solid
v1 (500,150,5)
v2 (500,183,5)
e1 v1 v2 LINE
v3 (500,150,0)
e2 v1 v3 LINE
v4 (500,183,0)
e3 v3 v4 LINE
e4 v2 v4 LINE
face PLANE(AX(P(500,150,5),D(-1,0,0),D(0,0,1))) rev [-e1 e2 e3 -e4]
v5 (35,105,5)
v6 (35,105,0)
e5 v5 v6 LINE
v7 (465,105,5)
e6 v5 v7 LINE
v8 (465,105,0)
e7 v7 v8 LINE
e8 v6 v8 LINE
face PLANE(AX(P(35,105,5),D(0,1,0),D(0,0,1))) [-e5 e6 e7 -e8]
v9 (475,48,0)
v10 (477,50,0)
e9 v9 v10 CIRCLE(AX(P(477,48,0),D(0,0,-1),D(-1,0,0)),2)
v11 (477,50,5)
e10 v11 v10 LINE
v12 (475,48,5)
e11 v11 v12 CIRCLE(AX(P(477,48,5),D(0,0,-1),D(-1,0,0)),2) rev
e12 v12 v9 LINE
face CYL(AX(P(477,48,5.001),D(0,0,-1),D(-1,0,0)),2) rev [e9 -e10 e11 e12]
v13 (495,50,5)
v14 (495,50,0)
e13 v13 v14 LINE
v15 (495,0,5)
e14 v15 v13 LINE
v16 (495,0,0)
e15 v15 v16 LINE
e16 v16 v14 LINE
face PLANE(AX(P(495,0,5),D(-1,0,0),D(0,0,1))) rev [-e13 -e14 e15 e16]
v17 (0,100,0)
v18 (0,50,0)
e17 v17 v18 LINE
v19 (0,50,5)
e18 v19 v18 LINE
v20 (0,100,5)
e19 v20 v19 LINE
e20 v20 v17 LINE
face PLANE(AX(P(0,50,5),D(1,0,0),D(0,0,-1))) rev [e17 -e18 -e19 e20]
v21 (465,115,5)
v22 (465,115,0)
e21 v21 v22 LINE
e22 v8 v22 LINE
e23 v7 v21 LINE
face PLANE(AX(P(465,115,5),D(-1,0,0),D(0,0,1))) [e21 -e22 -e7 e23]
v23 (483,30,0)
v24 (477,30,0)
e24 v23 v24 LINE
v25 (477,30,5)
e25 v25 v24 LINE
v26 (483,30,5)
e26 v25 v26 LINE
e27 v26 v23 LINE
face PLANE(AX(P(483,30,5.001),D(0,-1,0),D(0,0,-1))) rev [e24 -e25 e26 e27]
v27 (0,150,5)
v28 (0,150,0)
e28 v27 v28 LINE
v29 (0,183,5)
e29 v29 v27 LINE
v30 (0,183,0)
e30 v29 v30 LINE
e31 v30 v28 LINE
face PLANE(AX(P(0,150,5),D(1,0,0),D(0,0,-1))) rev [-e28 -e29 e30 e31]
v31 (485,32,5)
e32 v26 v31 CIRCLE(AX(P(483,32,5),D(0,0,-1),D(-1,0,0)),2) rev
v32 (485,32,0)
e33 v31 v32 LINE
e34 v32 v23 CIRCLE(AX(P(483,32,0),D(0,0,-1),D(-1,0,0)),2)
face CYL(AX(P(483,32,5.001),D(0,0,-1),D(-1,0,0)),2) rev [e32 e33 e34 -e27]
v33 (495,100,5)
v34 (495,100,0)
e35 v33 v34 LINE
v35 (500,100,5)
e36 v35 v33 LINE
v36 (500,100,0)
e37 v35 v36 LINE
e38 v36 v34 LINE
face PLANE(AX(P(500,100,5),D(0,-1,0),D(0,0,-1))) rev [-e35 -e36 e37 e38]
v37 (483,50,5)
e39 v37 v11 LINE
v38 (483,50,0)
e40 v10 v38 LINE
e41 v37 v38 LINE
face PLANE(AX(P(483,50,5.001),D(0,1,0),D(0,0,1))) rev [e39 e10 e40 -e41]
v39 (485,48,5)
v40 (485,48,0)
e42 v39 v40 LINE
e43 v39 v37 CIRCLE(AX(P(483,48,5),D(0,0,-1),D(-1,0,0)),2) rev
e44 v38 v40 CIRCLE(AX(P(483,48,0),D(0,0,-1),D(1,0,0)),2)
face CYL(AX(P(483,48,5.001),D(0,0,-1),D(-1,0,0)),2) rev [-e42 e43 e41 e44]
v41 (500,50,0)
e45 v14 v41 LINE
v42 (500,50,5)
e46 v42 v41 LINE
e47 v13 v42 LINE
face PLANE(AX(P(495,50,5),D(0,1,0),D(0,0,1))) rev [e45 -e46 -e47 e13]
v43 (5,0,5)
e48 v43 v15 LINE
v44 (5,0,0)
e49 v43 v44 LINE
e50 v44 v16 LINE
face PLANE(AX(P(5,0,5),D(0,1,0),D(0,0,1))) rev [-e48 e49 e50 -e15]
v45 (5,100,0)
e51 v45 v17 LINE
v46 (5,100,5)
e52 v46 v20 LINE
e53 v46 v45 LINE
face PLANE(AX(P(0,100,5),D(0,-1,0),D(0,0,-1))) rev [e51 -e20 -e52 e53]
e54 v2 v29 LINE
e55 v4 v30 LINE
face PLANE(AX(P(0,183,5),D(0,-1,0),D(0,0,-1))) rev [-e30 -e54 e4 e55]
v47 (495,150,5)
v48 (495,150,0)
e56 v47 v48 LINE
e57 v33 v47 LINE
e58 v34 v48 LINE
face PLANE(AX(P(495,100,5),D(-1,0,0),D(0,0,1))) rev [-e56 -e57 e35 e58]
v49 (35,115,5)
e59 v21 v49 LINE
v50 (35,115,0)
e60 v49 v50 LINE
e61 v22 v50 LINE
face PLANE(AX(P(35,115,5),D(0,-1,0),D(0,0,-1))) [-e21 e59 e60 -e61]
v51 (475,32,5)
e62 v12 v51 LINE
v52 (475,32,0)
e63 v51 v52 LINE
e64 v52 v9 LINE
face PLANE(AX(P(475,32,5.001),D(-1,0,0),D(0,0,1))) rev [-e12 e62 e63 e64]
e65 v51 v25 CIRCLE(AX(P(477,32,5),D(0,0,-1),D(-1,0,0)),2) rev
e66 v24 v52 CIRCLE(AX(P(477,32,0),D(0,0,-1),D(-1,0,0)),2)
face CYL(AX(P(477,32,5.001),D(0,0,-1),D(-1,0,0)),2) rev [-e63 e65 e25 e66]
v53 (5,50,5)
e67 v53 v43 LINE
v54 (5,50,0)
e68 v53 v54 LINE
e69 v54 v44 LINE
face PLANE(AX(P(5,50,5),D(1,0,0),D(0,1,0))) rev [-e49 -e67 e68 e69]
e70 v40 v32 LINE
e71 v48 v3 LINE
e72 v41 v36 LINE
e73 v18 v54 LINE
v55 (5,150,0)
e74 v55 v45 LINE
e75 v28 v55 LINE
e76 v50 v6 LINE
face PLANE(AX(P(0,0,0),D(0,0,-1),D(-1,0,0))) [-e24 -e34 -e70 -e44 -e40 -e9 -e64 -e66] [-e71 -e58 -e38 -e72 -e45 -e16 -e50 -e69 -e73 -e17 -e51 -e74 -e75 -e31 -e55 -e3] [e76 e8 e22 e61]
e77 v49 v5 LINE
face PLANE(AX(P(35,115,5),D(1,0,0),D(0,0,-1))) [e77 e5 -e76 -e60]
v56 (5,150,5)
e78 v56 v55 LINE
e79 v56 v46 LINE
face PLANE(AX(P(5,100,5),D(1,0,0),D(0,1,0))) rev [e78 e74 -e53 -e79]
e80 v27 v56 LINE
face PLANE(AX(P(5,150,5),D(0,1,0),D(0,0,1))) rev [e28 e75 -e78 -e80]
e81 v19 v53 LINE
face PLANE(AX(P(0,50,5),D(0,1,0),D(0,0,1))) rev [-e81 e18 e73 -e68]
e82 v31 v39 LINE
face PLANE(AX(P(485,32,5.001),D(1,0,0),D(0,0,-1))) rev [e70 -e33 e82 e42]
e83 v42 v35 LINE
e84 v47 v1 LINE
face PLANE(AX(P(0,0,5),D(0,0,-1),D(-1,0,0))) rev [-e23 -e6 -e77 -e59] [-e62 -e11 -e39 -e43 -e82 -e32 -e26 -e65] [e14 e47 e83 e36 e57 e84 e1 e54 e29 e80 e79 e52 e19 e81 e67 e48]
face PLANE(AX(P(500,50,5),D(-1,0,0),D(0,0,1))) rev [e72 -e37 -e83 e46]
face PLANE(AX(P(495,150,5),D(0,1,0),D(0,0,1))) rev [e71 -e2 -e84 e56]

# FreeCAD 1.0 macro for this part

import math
import FreeCAD as App
import Part
import Sketcher

doc = App.newDocument("Part")
params = doc.addObject("Spreadsheet::Sheet", "Params")
for row, (alias, value) in enumerate([
    ("sketch1_width", "5 mm"),
    ("sketch1_width2", "490 mm"),
    ("sketch1_width3", "430 mm"),
    ("sketch1_height", "50 mm"),
    ("sketch1_height2", "33 mm"),
    ("pad1_length", "5 mm"),
    ("sketch2_radius", "2 mm"),
    ("sketch2_width", "6 mm"),
    ("sketch2_height", "16 mm"),
], start=1):
    params.set(f"A{row}", alias)
    params.set(f"B{row}", "=" + value)
    params.setAlias(f"B{row}", alias)

body = doc.addObject("PartDesign::Body", "Body")

sketch1 = doc.addObject("Sketcher::SketchObject", "Sketch")
body.addObject(sketch1)
sketch1.AttachmentSupport = (doc.XY_Plane, [""])
sketch1.MapMode = "FlatFace"
sketch1.addGeometry([
    Part.LineSegment(App.Vector(0, 50, 0), App.Vector(5, 50, 0)),
    Part.LineSegment(App.Vector(5, 50, 0), App.Vector(5, 0, 0)),
    Part.LineSegment(App.Vector(5, 0, 0), App.Vector(495, 0, 0)),
    Part.LineSegment(App.Vector(495, 0, 0), App.Vector(495, 50, 0)),
    Part.LineSegment(App.Vector(495, 50, 0), App.Vector(500, 50, 0)),
    Part.LineSegment(App.Vector(500, 50, 0), App.Vector(500, 100, 0)),
    Part.LineSegment(App.Vector(500, 100, 0), App.Vector(495, 100, 0)),
    Part.LineSegment(App.Vector(495, 100, 0), App.Vector(495, 150, 0)),
    Part.LineSegment(App.Vector(495, 150, 0), App.Vector(500, 150, 0)),
    Part.LineSegment(App.Vector(500, 150, 0), App.Vector(500, 183, 0)),
    Part.LineSegment(App.Vector(500, 183, 0), App.Vector(0, 183, 0)),
    Part.LineSegment(App.Vector(0, 183, 0), App.Vector(0, 150, 0)),
    Part.LineSegment(App.Vector(0, 150, 0), App.Vector(5, 150, 0)),
    Part.LineSegment(App.Vector(5, 150, 0), App.Vector(5, 100, 0)),
    Part.LineSegment(App.Vector(5, 100, 0), App.Vector(0, 100, 0)),
    Part.LineSegment(App.Vector(0, 100, 0), App.Vector(0, 50, 0)),
    Part.LineSegment(App.Vector(465, 105, 0), App.Vector(35, 105, 0)),
    Part.LineSegment(App.Vector(35, 105, 0), App.Vector(35, 115, 0)),
    Part.LineSegment(App.Vector(35, 115, 0), App.Vector(465, 115, 0)),
    Part.LineSegment(App.Vector(465, 115, 0), App.Vector(465, 105, 0)),
], False)
sketch1.addConstraint([
    Sketcher.Constraint("Coincident", 0, 2, 1, 1),
    Sketcher.Constraint("Coincident", 1, 2, 2, 1),
    Sketcher.Constraint("Coincident", 2, 2, 3, 1),
    Sketcher.Constraint("Coincident", 3, 2, 4, 1),
    Sketcher.Constraint("Coincident", 4, 2, 5, 1),
    Sketcher.Constraint("Coincident", 5, 2, 6, 1),
    Sketcher.Constraint("Coincident", 6, 2, 7, 1),
    Sketcher.Constraint("Coincident", 7, 2, 8, 1),
    Sketcher.Constraint("Coincident", 8, 2, 9, 1),
    Sketcher.Constraint("Coincident", 9, 2, 10, 1),
    Sketcher.Constraint("Coincident", 10, 2, 11, 1),
    Sketcher.Constraint("Coincident", 11, 2, 12, 1),
    Sketcher.Constraint("Coincident", 12, 2, 13, 1),
    Sketcher.Constraint("Coincident", 13, 2, 14, 1),
    Sketcher.Constraint("Coincident", 14, 2, 15, 1),
    Sketcher.Constraint("Coincident", 15, 2, 0, 1),
    Sketcher.Constraint("Coincident", 16, 2, 17, 1),
    Sketcher.Constraint("Coincident", 17, 2, 18, 1),
    Sketcher.Constraint("Coincident", 18, 2, 19, 1),
    Sketcher.Constraint("Coincident", 19, 2, 16, 1),
    Sketcher.Constraint("Horizontal", 0),
    Sketcher.Constraint("Vertical", 1),
    Sketcher.Constraint("Horizontal", 2),
    Sketcher.Constraint("Vertical", 3),
    Sketcher.Constraint("Horizontal", 4),
    Sketcher.Constraint("Vertical", 5),
    Sketcher.Constraint("Horizontal", 6),
    Sketcher.Constraint("Vertical", 7),
    Sketcher.Constraint("Horizontal", 8),
    Sketcher.Constraint("Vertical", 9),
    Sketcher.Constraint("Horizontal", 10),
    Sketcher.Constraint("Vertical", 11),
    Sketcher.Constraint("Horizontal", 12),
    Sketcher.Constraint("Vertical", 13),
    Sketcher.Constraint("Horizontal", 14),
    Sketcher.Constraint("Vertical", 15),
    Sketcher.Constraint("Horizontal", 16),
    Sketcher.Constraint("Vertical", 17),
    Sketcher.Constraint("Horizontal", 18),
    Sketcher.Constraint("Vertical", 19),
    Sketcher.Constraint("PointOnObject", 1, 2, -1),
    Sketcher.Constraint("PointOnObject", 10, 2, -2),
    Sketcher.Constraint("PointOnObject", 14, 2, -2),
    Sketcher.Constraint("Horizontal", 0, 2, 3, 2),
    Sketcher.Constraint("Horizontal", 8, 2, 11, 2),
    Sketcher.Constraint("Horizontal", 6, 2, 13, 2),
    Sketcher.Constraint("Vertical", 3, 2, 6, 2),
    Sketcher.Constraint("Vertical", 5, 2, 8, 2),
    Sketcher.Constraint("Vertical", 1, 2, 12, 2),
    Sketcher.Constraint("Equal", 0, 4),
    Sketcher.Constraint("Equal", 3, 5),
    Sketcher.Constraint("Equal", 5, 7),
    Sketcher.Constraint("DistanceX", 0, 1, 0, 2, 5.0),
    Sketcher.Constraint("DistanceX", 2, 1, 2, 2, 490.0),
    Sketcher.Constraint("DistanceX", 16, 2, 16, 1, 430.0),
    Sketcher.Constraint("DistanceY", 1, 2, 1, 1, 50.0),
    Sketcher.Constraint("DistanceY", 9, 1, 9, 2, 33.0),
    Sketcher.Constraint("DistanceY", 17, 1, 17, 2, 10.0),
    Sketcher.Constraint("DistanceX", -1, 1, 16, 2, 35.0),
    Sketcher.Constraint("DistanceY", -1, 1, 16, 2, 105.0),
])
sketch1.setExpression("Constraints[52]", "Params.sketch1_width")
sketch1.setExpression("Constraints[53]", "Params.sketch1_width2")
sketch1.setExpression("Constraints[54]", "Params.sketch1_width3")
sketch1.setExpression("Constraints[55]", "Params.sketch1_height")
sketch1.setExpression("Constraints[56]", "Params.sketch1_height2")
pad1 = doc.addObject("PartDesign::Pad", "Pad")
body.addObject(pad1)
pad1.Profile = sketch1
pad1.setExpression("Length", "Params.pad1_length")

sketch2 = doc.addObject("Sketcher::SketchObject", "Sketch001")
body.addObject(sketch2)
sketch2.AttachmentSupport = (doc.XY_Plane, [""])
sketch2.MapMode = "FlatFace"
sketch2.addGeometry([
    Part.LineSegment(App.Vector(483, 30, 0), App.Vector(477, 30, 0)),
    Part.ArcOfCircle(Part.Circle(App.Vector(477, 32, 0), App.Vector(0, 0, 1), 2), math.radians(-180), math.radians(-90)),
    Part.LineSegment(App.Vector(475, 32, 0), App.Vector(475, 48, 0)),
    Part.ArcOfCircle(Part.Circle(App.Vector(477, 48, 0), App.Vector(0, 0, 1), 2), math.radians(90), math.radians(180)),
    Part.LineSegment(App.Vector(477, 50, 0), App.Vector(483, 50, 0)),
    Part.ArcOfCircle(Part.Circle(App.Vector(483, 48, 0), App.Vector(0, 0, 1), 2), math.radians(0), math.radians(90)),
    Part.LineSegment(App.Vector(485, 48, 0), App.Vector(485, 32, 0)),
    Part.ArcOfCircle(Part.Circle(App.Vector(483, 32, 0), App.Vector(0, 0, 1), 2), math.radians(-90), math.radians(0)),
], False)
sketch2.addConstraint([
    Sketcher.Constraint("Tangent", 0, 2, 1, 2),
    Sketcher.Constraint("Tangent", 1, 1, 2, 1),
    Sketcher.Constraint("Tangent", 2, 2, 3, 2),
    Sketcher.Constraint("Tangent", 3, 1, 4, 1),
    Sketcher.Constraint("Tangent", 4, 2, 5, 2),
    Sketcher.Constraint("Tangent", 5, 1, 6, 1),
    Sketcher.Constraint("Tangent", 6, 2, 7, 2),
    Sketcher.Constraint("Tangent", 7, 1, 0, 1),
    Sketcher.Constraint("Horizontal", 0),
    Sketcher.Constraint("Vertical", 2),
    Sketcher.Constraint("Horizontal", 4),
    Sketcher.Constraint("Vertical", 6),
    Sketcher.Constraint("Equal", 1, 3),
    Sketcher.Constraint("Equal", 3, 5),
    Sketcher.Constraint("Equal", 5, 7),
    Sketcher.Constraint("Radius", 1, 2.0),
    Sketcher.Constraint("DistanceX", 0, 2, 0, 1, 6.0),
    Sketcher.Constraint("DistanceY", 2, 1, 2, 2, 16.0),
    Sketcher.Constraint("DistanceX", -1, 1, 1, 3, 477.0),
    Sketcher.Constraint("DistanceY", -1, 1, 1, 3, 32.0),
])
sketch2.setExpression("Constraints[15]", "Params.sketch2_radius")
sketch2.setExpression("Constraints[16]", "Params.sketch2_width")
sketch2.setExpression("Constraints[17]", "Params.sketch2_height")
pocket1 = doc.addObject("PartDesign::Pocket", "Pocket")
body.addObject(pocket1)
pocket1.Profile = sketch2
pocket1.Type = "UpToFirst"
pocket1.Reversed = True

doc.recompute()
